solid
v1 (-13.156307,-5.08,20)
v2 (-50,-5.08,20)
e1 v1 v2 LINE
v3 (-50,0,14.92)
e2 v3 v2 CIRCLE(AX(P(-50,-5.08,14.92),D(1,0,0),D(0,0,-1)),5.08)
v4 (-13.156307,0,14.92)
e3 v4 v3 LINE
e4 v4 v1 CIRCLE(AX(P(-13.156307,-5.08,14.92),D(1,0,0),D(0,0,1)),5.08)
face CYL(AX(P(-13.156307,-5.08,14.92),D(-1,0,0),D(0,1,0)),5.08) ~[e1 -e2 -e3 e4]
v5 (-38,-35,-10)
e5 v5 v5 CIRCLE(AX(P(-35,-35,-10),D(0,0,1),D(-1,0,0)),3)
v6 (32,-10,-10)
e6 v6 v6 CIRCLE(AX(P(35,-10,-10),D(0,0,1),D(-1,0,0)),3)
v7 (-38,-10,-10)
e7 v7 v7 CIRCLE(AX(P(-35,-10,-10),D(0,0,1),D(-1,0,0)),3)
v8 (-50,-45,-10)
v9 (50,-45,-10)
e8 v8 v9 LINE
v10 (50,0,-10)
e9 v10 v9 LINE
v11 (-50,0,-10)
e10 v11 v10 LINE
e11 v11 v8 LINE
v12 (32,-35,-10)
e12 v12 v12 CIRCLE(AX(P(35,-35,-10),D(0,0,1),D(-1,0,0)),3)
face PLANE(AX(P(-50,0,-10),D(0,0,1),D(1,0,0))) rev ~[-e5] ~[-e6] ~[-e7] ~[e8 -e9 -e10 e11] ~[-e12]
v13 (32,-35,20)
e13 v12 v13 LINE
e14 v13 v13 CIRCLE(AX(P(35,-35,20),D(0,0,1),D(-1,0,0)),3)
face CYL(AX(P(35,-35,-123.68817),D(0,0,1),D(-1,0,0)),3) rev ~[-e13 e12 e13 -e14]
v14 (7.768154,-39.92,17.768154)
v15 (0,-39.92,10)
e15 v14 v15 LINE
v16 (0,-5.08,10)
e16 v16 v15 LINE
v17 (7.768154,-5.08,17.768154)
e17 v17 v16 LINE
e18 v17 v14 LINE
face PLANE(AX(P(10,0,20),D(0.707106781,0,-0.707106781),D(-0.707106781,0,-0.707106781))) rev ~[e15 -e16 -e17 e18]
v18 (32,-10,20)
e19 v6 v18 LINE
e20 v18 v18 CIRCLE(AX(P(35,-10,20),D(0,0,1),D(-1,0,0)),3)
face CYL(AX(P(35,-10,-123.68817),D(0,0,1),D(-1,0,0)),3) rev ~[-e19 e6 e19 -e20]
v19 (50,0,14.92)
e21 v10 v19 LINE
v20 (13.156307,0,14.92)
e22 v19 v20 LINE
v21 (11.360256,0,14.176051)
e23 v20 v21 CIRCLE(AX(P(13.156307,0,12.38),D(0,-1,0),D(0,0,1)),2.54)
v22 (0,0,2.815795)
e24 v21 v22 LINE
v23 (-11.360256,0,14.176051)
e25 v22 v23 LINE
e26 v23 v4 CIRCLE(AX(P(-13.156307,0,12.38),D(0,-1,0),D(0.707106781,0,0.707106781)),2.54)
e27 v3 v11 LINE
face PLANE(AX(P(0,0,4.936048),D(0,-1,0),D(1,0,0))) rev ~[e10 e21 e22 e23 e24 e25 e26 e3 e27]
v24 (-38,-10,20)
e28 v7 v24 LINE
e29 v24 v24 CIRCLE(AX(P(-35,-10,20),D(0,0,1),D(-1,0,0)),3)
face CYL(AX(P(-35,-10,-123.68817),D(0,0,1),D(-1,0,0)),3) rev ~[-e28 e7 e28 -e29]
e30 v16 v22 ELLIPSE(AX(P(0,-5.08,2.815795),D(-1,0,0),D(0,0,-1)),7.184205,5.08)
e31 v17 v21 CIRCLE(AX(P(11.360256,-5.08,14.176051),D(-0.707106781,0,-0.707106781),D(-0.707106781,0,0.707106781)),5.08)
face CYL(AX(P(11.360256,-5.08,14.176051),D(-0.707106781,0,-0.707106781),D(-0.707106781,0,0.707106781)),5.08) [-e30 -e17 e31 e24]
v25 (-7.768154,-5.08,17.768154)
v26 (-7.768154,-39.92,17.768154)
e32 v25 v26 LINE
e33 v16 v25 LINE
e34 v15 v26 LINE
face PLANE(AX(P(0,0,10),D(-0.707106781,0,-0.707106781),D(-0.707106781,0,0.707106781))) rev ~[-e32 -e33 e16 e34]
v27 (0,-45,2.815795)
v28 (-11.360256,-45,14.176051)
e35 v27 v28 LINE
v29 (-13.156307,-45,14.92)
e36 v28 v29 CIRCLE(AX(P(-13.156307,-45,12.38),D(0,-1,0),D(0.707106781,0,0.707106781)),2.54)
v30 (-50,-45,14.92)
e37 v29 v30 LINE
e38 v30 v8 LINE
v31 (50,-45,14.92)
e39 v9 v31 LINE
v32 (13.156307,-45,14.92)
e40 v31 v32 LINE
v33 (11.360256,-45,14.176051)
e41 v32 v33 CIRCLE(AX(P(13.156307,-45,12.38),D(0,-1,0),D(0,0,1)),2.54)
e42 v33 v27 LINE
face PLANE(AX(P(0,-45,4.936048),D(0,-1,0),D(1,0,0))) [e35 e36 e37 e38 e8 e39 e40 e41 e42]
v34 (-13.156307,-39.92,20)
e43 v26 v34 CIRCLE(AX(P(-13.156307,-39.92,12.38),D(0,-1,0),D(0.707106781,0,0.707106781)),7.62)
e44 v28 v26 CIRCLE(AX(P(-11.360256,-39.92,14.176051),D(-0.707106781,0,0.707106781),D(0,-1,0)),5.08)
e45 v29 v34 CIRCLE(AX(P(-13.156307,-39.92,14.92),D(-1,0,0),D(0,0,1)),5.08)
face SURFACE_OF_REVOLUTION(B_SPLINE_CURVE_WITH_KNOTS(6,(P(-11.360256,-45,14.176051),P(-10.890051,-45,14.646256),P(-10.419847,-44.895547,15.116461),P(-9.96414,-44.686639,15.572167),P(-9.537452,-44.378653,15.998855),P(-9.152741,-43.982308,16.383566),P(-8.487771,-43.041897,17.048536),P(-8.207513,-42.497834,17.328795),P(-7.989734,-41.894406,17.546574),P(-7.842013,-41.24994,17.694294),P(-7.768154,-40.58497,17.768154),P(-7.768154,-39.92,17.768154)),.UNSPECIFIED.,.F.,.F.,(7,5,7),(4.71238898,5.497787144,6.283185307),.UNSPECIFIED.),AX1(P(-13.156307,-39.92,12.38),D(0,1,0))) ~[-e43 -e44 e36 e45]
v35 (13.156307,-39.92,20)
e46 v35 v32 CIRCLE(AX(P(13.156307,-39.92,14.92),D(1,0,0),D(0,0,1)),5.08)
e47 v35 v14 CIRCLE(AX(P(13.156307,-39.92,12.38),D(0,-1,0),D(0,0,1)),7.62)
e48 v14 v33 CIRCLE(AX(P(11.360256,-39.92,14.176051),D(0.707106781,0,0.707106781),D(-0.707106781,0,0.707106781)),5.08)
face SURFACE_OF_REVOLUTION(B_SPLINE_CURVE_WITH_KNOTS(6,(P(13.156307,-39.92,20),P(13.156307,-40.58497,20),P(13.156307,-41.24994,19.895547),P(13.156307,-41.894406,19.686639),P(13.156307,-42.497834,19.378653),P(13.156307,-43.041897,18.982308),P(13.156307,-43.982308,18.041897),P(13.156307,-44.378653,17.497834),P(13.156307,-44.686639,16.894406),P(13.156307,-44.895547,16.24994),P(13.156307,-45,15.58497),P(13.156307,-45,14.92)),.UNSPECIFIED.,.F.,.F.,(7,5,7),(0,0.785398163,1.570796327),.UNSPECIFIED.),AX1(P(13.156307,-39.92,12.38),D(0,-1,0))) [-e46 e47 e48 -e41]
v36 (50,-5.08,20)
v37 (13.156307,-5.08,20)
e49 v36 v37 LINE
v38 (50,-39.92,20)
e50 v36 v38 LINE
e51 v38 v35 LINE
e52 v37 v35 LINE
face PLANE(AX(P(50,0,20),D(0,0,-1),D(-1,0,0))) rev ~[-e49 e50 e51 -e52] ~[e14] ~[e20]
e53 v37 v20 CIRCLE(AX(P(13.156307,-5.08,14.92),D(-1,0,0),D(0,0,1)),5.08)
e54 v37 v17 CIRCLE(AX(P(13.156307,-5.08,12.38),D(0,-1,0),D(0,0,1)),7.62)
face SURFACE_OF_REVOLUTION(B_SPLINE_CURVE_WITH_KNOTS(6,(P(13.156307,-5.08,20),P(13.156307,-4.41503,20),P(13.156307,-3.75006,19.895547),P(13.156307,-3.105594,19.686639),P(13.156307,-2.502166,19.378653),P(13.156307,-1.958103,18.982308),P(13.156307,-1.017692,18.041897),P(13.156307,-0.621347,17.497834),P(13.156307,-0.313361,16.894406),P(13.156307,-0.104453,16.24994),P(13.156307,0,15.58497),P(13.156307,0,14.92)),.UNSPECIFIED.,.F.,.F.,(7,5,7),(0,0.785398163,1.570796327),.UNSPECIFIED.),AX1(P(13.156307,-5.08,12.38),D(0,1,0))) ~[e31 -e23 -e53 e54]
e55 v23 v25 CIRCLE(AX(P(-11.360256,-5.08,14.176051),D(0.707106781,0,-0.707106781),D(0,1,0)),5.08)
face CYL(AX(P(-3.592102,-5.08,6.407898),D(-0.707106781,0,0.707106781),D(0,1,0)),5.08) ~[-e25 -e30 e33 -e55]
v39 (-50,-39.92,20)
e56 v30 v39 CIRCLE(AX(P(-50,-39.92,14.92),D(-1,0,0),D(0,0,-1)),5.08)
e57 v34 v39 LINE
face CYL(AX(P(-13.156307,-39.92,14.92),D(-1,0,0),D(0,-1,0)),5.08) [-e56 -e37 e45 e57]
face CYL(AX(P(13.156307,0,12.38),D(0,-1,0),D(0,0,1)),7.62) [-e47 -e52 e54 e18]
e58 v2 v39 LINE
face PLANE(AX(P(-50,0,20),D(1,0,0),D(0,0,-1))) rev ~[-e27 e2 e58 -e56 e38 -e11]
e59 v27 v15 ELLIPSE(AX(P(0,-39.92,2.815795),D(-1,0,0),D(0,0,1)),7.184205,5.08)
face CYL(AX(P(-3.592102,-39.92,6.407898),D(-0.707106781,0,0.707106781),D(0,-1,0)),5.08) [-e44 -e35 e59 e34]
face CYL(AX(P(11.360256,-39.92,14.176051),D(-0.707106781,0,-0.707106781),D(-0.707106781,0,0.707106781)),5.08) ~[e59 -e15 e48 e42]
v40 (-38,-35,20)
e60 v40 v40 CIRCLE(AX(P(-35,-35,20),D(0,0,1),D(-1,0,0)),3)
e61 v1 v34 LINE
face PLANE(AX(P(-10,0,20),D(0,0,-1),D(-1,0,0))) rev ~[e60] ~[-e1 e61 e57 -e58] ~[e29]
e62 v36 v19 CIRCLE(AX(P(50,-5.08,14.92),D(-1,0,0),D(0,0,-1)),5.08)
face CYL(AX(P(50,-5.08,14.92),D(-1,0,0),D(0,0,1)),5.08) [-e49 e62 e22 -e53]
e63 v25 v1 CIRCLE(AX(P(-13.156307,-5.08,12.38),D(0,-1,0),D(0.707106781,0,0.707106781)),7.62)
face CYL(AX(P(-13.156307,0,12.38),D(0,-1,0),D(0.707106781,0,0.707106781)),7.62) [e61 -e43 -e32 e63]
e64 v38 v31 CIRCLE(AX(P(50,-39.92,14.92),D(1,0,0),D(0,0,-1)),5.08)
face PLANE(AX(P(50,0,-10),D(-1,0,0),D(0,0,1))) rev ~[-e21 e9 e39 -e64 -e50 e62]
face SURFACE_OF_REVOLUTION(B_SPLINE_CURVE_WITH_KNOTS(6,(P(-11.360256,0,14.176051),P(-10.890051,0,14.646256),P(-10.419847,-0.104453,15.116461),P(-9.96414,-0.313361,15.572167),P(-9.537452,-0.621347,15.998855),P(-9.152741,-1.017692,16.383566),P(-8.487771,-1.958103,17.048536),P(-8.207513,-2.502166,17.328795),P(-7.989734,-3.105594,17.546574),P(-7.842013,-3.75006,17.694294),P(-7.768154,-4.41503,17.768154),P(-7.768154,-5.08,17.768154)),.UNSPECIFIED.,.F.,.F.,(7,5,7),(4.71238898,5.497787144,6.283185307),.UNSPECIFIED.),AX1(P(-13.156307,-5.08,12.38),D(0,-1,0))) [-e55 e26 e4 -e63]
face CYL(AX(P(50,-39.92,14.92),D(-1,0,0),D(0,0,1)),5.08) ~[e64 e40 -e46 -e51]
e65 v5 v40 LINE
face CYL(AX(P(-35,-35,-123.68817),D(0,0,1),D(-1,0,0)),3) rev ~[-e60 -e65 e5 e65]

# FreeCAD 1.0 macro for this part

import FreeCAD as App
import Part
import Sketcher
from FreeCAD import Vector
Q = App.Units.Quantity


def edges_at(feature, points):
    """Names of the edges that pass closest to the given points."""
    edges = feature.Shape.Edges
    near = lambda p: min(range(len(edges)), key=lambda i: edges[i].distToShape(Part.Vertex(*p))[0])
    return sorted({f"Edge{near(p) + 1}" for p in points})

doc = App.newDocument("Part")
body = doc.addObject("PartDesign::Body", "Body")

# Sketch on XZ plane
sketch1 = body.newObject("Sketcher::SketchObject", "Sketch")
sketch1.AttachmentSupport = (doc.getObject("XZ_Plane"), [""])
sketch1.MapMode = "FlatFace"
sketch1.addGeometry([
    Part.LineSegment(Vector(50, 20, 0), Vector(10, 20, 0)),  # 0
    Part.LineSegment(Vector(10, 20, 0), Vector(0, 10, 0)),  # 1
    Part.LineSegment(Vector(0, 10, 0), Vector(-10, 20, 0)),  # 2
    Part.LineSegment(Vector(-10, 20, 0), Vector(-50, 20, 0)),  # 3
    Part.LineSegment(Vector(-50, 20, 0), Vector(-50, -10, 0)),  # 4
    Part.LineSegment(Vector(-50, -10, 0), Vector(50, -10, 0)),  # 5
    Part.LineSegment(Vector(50, -10, 0), Vector(50, 20, 0)),  # 6
], False)
sketch1.addConstraint([
    Sketcher.Constraint("Coincident", 0, 2, 1, 1),
    Sketcher.Constraint("Coincident", 1, 2, 2, 1),
    Sketcher.Constraint("Coincident", 2, 2, 3, 1),
    Sketcher.Constraint("Coincident", 3, 2, 4, 1),
    Sketcher.Constraint("Coincident", 4, 2, 5, 1),
    Sketcher.Constraint("Coincident", 5, 2, 6, 1),
    Sketcher.Constraint("Coincident", 6, 2, 0, 1),
    Sketcher.Constraint("Horizontal", 0),
    Sketcher.Constraint("Horizontal", 3),
    Sketcher.Constraint("Vertical", 4),
    Sketcher.Constraint("Horizontal", 5),
    Sketcher.Constraint("Vertical", 6),
    Sketcher.Constraint("Symmetric", 0, 2, 2, 2, -2),
    Sketcher.Constraint("PointOnObject", 1, 2, -2),
    Sketcher.Constraint("Perpendicular", 1, 2),
    Sketcher.Constraint("Equal", 0, 3),
    Sketcher.Constraint("DistanceX", 0, 2, 0, 1, Q("40 mm")),
    Sketcher.Constraint("DistanceX", 5, 1, 5, 2, Q("100 mm")),
    Sketcher.Constraint("DistanceY", 4, 2, 4, 1, Q("30 mm")),
    Sketcher.Constraint("DistanceY", -1, 1, 0, 2, Q("20 mm")),
])
pad1 = body.newObject("PartDesign::Pad", "Pad")
pad1.Profile = sketch1
pad1.Length = 45
doc.recompute()

fillet = body.newObject("PartDesign::Fillet", "Fillet")
fillet.Base = (pad1, edges_at(pad1, [(10, -22.5, 20), (-10, -22.5, 20)]))
fillet.Radius = 7.62
doc.recompute()

fillet2 = body.newObject("PartDesign::Fillet", "Fillet001")
fillet2.Base = (fillet, edges_at(fillet, [
    (-31.578, -45, 20),
    (31.578, -45, 20),
    (31.578, 0, 20),
    (-31.578, 0, 20),
]))
fillet2.Radius = 5.08

# Sketch on XY plane
sketch2 = body.newObject("Sketcher::SketchObject", "Sketch001")
sketch2.AttachmentSupport = (doc.getObject("XY_Plane"), [""])
sketch2.MapMode = "FlatFace"
sketch2.AttachmentOffset = App.Placement(Vector(0, 0, -10), App.Rotation())
sketch2.addGeometry([
    Part.Circle(Vector(35, -10, 0), Vector(0, 0, 1), 3),
    Part.Circle(Vector(35, -35, 0), Vector(0, 0, 1), 3),
    Part.Circle(Vector(-35, -35, 0), Vector(0, 0, 1), 3),
    Part.Circle(Vector(-35, -10, 0), Vector(0, 0, 1), 3),
], False)
sketch2.addConstraint([
    Sketcher.Constraint("Equal", 0, 1),
    Sketcher.Constraint("Equal", 1, 2),
    Sketcher.Constraint("Equal", 2, 3),
    Sketcher.Constraint("Symmetric", 1, 3, 2, 3, -2),
    Sketcher.Constraint("Symmetric", 0, 3, 3, 3, -2),
    Sketcher.Constraint("Vertical", 0, 3, 1, 3),
    Sketcher.Constraint("Diameter", 0, Q("6 mm")),
    Sketcher.Constraint("DistanceX", -1, 1, 0, 3, Q("35 mm")),
    Sketcher.Constraint("DistanceY", 0, 3, -1, 1, Q("10 mm")),
    Sketcher.Constraint("DistanceY", 1, 3, -1, 1, Q("35 mm")),
])
doc.recompute()
hole = body.newObject("PartDesign::Hole", "Hole")
hole.Profile = sketch2
hole.ThreadType = "None"
hole.Diameter = 6
hole.DepthType = "ThroughAll"
hole.Reversed = True

doc.recompute()
